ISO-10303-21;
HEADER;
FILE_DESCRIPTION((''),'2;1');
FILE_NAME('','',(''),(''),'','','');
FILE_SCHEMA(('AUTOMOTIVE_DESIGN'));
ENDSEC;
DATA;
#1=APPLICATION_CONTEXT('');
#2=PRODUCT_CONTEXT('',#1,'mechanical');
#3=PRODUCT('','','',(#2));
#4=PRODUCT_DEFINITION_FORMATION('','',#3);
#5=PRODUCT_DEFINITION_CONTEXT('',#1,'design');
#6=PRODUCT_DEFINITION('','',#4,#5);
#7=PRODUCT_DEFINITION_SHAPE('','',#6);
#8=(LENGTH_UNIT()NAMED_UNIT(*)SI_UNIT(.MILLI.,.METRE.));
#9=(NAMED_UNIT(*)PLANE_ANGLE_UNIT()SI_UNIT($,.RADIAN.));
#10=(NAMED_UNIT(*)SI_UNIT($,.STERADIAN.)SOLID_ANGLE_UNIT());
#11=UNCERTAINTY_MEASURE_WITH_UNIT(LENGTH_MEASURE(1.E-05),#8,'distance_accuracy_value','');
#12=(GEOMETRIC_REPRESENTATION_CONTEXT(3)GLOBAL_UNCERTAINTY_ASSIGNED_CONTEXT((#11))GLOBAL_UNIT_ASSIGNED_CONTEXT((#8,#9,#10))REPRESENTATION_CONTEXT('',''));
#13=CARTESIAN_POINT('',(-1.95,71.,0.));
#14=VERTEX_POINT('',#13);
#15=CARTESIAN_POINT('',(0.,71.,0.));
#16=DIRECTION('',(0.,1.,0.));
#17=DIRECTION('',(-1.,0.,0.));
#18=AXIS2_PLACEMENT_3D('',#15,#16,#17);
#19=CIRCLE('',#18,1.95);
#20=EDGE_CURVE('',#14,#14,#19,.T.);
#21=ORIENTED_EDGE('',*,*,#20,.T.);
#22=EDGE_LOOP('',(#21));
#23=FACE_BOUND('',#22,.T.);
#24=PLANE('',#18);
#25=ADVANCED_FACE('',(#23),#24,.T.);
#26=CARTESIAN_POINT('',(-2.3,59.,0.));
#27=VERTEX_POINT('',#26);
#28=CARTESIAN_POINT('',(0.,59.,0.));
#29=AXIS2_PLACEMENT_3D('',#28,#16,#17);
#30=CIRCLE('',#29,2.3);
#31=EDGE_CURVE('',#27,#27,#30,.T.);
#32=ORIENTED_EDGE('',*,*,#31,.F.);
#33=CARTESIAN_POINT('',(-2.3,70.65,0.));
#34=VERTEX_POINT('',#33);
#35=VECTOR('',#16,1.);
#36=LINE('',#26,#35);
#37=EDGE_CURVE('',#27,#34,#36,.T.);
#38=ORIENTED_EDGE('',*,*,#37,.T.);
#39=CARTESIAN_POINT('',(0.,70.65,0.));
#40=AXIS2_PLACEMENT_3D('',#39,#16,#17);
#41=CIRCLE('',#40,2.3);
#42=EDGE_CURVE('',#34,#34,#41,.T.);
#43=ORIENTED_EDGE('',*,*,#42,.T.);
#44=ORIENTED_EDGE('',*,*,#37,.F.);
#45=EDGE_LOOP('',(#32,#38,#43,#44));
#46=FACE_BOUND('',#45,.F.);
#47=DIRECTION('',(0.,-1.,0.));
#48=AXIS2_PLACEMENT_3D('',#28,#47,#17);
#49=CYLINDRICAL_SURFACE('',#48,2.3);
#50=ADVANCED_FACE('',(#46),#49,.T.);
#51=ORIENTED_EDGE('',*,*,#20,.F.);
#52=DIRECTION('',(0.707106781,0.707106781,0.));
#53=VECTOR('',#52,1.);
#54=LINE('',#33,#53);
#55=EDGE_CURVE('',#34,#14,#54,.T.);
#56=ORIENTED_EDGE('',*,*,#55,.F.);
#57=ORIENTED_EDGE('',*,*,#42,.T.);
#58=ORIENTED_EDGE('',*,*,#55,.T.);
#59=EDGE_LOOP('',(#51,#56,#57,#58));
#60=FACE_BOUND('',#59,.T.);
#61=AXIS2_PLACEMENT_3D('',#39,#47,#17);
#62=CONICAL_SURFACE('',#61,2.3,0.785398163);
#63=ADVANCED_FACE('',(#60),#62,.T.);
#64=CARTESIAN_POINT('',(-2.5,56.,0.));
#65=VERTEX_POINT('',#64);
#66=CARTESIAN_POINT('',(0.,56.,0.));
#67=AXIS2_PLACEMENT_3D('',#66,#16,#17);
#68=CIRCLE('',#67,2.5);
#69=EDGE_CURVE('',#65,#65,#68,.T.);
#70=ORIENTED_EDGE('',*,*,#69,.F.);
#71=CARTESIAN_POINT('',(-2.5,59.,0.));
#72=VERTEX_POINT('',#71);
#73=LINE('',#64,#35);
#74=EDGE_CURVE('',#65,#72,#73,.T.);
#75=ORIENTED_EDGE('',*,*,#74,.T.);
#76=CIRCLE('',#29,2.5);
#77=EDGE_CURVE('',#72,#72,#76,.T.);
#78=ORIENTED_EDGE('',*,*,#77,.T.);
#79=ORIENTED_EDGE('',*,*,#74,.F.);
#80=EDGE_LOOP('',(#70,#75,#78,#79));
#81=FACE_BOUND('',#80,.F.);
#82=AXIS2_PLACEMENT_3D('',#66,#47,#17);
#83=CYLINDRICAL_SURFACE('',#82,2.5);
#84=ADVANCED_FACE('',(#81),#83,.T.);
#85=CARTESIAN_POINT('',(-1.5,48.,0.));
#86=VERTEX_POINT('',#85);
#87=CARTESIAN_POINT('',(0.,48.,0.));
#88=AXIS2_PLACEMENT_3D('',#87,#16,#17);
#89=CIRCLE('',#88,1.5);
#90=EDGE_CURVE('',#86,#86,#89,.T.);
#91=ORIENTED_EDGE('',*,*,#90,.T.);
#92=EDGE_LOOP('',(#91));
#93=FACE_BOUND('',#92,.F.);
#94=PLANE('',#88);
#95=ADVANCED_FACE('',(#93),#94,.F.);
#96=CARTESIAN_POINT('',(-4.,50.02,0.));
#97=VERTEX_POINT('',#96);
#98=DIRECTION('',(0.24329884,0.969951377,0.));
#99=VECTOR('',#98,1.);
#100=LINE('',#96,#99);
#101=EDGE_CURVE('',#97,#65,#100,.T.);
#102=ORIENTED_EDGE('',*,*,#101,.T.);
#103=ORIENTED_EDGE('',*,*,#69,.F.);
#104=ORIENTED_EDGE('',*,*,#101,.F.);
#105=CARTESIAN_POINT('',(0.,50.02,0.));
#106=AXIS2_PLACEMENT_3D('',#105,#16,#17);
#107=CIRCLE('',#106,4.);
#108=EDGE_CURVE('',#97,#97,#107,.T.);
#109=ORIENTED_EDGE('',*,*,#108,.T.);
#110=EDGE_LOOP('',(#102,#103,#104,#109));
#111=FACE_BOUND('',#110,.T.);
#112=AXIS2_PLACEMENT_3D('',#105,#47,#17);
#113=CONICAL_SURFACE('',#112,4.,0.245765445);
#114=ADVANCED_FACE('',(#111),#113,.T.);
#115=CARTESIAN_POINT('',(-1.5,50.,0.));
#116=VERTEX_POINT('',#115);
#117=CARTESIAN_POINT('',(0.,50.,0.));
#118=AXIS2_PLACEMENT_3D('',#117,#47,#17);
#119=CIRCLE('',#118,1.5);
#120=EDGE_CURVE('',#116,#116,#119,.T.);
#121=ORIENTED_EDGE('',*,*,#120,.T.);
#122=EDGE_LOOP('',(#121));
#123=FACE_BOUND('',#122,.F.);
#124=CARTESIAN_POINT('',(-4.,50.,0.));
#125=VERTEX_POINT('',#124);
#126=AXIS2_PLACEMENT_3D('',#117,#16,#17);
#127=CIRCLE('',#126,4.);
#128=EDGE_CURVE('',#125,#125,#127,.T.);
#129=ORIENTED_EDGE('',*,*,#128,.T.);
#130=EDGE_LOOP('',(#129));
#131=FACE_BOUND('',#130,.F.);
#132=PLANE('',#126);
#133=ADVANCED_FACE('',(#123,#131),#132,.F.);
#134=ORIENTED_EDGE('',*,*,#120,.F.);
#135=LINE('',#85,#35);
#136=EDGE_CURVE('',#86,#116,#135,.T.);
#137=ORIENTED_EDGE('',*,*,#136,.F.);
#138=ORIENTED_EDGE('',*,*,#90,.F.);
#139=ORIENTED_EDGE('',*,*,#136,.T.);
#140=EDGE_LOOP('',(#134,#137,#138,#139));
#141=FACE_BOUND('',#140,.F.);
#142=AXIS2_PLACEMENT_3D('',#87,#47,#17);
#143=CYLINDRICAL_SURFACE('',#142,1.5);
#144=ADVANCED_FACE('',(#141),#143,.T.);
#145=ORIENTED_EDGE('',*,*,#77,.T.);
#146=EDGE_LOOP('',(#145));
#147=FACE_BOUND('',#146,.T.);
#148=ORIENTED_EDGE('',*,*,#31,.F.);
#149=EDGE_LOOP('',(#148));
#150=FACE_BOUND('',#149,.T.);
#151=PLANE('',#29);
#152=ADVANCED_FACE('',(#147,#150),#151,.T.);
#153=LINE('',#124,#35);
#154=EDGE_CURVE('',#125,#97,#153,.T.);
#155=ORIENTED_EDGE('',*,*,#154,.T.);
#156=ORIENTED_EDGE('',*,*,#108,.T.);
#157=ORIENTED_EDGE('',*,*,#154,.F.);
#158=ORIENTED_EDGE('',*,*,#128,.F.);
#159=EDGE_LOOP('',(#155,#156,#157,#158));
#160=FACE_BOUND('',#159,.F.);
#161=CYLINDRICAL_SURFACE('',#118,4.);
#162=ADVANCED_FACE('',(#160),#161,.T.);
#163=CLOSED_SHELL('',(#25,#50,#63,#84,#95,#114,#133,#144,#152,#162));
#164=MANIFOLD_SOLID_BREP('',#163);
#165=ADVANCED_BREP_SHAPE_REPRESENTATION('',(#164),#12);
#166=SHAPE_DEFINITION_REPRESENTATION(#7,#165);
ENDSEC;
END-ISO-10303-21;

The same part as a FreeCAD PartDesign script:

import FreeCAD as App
import Part
import Sketcher

V = App.Vector
Q = App.Units.Quantity


def edges_at(feature, points):
    """Names of the edges that pass closest to the given points."""
    edges = feature.Shape.Edges
    near = lambda p: min(range(len(edges)), key=lambda i: edges[i].distToShape(Part.Vertex(*p))[0])
    return sorted({f"Edge{near(p) + 1}" for p in points})

doc = App.newDocument("Part")
body = doc.addObject("PartDesign::Body", "Body")

sketch1 = doc.addObject("Sketcher::SketchObject", "Sketch")
body.addObject(sketch1)
sketch1.AttachmentSupport = (doc.XY_Plane, [""])
sketch1.MapMode = "FlatFace"
sketch1.AttachmentOffset = App.Placement(V(0, 0, 39), App.Rotation())
sketch1.addGeometry(Part.Circle(V(0, 0, 0), V(0, 0, 1), 2.3), False)
sketch1.addConstraint([
    Sketcher.Constraint("Coincident", 0, 3, -1, 1),
    Sketcher.Constraint("Diameter", 0, Q("4.6 mm")),
])
pad1 = doc.addObject("PartDesign::Pad", "Pad")
body.addObject(pad1)
pad1.Profile = sketch1
pad1.Length = 12
doc.recompute()

chamfer = doc.addObject("PartDesign::Chamfer", "Chamfer")
body.addObject(chamfer)
chamfer.Base = (pad1, edges_at(pad1, [(-2.3, 0, 51)]))
chamfer.Size = 0.35
body2 = doc.addObject("PartDesign::Body", "Body001")

sketch2 = doc.addObject("Sketcher::SketchObject", "Sketch001")
body2.addObject(sketch2)
sketch2.AttachmentSupport = (doc.getObject("XY_Plane001"), [""])
sketch2.MapMode = "FlatFace"
sketch2.AttachmentOffset = App.Placement(V(0, 0, 36), App.Rotation())
sketch2.addGeometry(Part.Circle(V(0, 0, 0), V(0, 0, 1), 2.5), False)
sketch2.addConstraint([
    Sketcher.Constraint("Coincident", 0, 3, -1, 1),
    Sketcher.Constraint("Diameter", 0, Q("5 mm")),
])
pad2 = doc.addObject("PartDesign::Pad", "Pad001")
body2.addObject(pad2)
pad2.Profile = sketch2
pad2.Length = 3
body3 = doc.addObject("PartDesign::Body", "Body002")

sketch3 = doc.addObject("Sketcher::SketchObject", "Sketch002")
body3.addObject(sketch3)
sketch3.AttachmentSupport = (doc.getObject("XY_Plane002"), [""])
sketch3.MapMode = "FlatFace"
sketch3.addGeometry(Part.Circle(V(0, 0, 0), V(0, 0, 1), 4), False)
sketch3.addConstraint([
    Sketcher.Constraint("Coincident", 0, 3, -1, 1),
    Sketcher.Constraint("Diameter", 0, Q("8 mm")),
])
pad3 = doc.addObject("PartDesign::Pad", "Pad002")
body3.addObject(pad3)
pad3.Profile = sketch3
pad3.Length = 6
doc.recompute()

chamfer2 = doc.addObject("PartDesign::Chamfer", "Chamfer001")
body3.addObject(chamfer2)
chamfer2.Base = (pad3, edges_at(pad3, [(-4, 0, 6)]))
chamfer2.ChamferType = "Two distances"
chamfer2.Size = 5.98
chamfer2.Size2 = 1.5
body4 = doc.addObject("PartDesign::Body", "Body003")
doc.recompute()

body3.Placement = App.Placement(V(0, 0, 30), App.Rotation(V(0, 0, 1), 0))
boolean = doc.addObject("PartDesign::Boolean", "Boolean")
body4.addObject(boolean)
boolean.Type = "Fuse"
boolean.addObjects([body3])
doc.recompute()

boolean2 = doc.addObject("PartDesign::Boolean", "Boolean001")
body4.addObject(boolean2)
boolean2.Type = "Fuse"
boolean2.addObjects([body2])
body5 = doc.addObject("PartDesign::Body", "Body004")

sketch4 = doc.addObject("Sketcher::SketchObject", "Sketch003")
body5.addObject(sketch4)
sketch4.AttachmentSupport = (doc.getObject("XY_Plane004"), [""])
sketch4.MapMode = "FlatFace"
sketch4.AttachmentOffset = App.Placement(V(0, 0, 28), App.Rotation())
sketch4.addGeometry(Part.Circle(V(0, 0, 0), V(0, 0, 1), 1.5), False)
sketch4.addConstraint([
    Sketcher.Constraint("Coincident", 0, 3, -1, 1),
    Sketcher.Constraint("Diameter", 0, Q("3 mm")),
])
pad4 = doc.addObject("PartDesign::Pad", "Pad003")
body5.addObject(pad4)
pad4.Profile = sketch4
pad4.Length = 10
doc.recompute()

boolean3 = doc.addObject("PartDesign::Boolean", "Boolean002")
body5.addObject(boolean3)
boolean3.Type = "Fuse"
boolean3.addObjects([body4])
doc.recompute()

boolean4 = doc.addObject("PartDesign::Boolean", "Boolean003")
body5.addObject(boolean4)
boolean4.Type = "Fuse"
boolean4.addObjects([body])
body6 = doc.addObject("PartDesign::Body", "Body005")
doc.recompute()

body5.Placement = App.Placement(V(0, 0, 0), App.Rotation(V(1, 0, 0), 90))
boolean5 = doc.addObject("PartDesign::Boolean", "Boolean004")
body6.addObject(boolean5)
boolean5.Type = "Fuse"
boolean5.addObjects([body5])
body7 = doc.addObject("PartDesign::Body", "Body006")
doc.recompute()

body6.Placement = App.Placement(V(0, 20, 0), App.Rotation(V(0, 0, 1), 180))
boolean6 = doc.addObject("PartDesign::Boolean", "Boolean005")
body7.addObject(boolean6)
boolean6.Type = "Fuse"
boolean6.addObjects([body6])

doc.recompute()
